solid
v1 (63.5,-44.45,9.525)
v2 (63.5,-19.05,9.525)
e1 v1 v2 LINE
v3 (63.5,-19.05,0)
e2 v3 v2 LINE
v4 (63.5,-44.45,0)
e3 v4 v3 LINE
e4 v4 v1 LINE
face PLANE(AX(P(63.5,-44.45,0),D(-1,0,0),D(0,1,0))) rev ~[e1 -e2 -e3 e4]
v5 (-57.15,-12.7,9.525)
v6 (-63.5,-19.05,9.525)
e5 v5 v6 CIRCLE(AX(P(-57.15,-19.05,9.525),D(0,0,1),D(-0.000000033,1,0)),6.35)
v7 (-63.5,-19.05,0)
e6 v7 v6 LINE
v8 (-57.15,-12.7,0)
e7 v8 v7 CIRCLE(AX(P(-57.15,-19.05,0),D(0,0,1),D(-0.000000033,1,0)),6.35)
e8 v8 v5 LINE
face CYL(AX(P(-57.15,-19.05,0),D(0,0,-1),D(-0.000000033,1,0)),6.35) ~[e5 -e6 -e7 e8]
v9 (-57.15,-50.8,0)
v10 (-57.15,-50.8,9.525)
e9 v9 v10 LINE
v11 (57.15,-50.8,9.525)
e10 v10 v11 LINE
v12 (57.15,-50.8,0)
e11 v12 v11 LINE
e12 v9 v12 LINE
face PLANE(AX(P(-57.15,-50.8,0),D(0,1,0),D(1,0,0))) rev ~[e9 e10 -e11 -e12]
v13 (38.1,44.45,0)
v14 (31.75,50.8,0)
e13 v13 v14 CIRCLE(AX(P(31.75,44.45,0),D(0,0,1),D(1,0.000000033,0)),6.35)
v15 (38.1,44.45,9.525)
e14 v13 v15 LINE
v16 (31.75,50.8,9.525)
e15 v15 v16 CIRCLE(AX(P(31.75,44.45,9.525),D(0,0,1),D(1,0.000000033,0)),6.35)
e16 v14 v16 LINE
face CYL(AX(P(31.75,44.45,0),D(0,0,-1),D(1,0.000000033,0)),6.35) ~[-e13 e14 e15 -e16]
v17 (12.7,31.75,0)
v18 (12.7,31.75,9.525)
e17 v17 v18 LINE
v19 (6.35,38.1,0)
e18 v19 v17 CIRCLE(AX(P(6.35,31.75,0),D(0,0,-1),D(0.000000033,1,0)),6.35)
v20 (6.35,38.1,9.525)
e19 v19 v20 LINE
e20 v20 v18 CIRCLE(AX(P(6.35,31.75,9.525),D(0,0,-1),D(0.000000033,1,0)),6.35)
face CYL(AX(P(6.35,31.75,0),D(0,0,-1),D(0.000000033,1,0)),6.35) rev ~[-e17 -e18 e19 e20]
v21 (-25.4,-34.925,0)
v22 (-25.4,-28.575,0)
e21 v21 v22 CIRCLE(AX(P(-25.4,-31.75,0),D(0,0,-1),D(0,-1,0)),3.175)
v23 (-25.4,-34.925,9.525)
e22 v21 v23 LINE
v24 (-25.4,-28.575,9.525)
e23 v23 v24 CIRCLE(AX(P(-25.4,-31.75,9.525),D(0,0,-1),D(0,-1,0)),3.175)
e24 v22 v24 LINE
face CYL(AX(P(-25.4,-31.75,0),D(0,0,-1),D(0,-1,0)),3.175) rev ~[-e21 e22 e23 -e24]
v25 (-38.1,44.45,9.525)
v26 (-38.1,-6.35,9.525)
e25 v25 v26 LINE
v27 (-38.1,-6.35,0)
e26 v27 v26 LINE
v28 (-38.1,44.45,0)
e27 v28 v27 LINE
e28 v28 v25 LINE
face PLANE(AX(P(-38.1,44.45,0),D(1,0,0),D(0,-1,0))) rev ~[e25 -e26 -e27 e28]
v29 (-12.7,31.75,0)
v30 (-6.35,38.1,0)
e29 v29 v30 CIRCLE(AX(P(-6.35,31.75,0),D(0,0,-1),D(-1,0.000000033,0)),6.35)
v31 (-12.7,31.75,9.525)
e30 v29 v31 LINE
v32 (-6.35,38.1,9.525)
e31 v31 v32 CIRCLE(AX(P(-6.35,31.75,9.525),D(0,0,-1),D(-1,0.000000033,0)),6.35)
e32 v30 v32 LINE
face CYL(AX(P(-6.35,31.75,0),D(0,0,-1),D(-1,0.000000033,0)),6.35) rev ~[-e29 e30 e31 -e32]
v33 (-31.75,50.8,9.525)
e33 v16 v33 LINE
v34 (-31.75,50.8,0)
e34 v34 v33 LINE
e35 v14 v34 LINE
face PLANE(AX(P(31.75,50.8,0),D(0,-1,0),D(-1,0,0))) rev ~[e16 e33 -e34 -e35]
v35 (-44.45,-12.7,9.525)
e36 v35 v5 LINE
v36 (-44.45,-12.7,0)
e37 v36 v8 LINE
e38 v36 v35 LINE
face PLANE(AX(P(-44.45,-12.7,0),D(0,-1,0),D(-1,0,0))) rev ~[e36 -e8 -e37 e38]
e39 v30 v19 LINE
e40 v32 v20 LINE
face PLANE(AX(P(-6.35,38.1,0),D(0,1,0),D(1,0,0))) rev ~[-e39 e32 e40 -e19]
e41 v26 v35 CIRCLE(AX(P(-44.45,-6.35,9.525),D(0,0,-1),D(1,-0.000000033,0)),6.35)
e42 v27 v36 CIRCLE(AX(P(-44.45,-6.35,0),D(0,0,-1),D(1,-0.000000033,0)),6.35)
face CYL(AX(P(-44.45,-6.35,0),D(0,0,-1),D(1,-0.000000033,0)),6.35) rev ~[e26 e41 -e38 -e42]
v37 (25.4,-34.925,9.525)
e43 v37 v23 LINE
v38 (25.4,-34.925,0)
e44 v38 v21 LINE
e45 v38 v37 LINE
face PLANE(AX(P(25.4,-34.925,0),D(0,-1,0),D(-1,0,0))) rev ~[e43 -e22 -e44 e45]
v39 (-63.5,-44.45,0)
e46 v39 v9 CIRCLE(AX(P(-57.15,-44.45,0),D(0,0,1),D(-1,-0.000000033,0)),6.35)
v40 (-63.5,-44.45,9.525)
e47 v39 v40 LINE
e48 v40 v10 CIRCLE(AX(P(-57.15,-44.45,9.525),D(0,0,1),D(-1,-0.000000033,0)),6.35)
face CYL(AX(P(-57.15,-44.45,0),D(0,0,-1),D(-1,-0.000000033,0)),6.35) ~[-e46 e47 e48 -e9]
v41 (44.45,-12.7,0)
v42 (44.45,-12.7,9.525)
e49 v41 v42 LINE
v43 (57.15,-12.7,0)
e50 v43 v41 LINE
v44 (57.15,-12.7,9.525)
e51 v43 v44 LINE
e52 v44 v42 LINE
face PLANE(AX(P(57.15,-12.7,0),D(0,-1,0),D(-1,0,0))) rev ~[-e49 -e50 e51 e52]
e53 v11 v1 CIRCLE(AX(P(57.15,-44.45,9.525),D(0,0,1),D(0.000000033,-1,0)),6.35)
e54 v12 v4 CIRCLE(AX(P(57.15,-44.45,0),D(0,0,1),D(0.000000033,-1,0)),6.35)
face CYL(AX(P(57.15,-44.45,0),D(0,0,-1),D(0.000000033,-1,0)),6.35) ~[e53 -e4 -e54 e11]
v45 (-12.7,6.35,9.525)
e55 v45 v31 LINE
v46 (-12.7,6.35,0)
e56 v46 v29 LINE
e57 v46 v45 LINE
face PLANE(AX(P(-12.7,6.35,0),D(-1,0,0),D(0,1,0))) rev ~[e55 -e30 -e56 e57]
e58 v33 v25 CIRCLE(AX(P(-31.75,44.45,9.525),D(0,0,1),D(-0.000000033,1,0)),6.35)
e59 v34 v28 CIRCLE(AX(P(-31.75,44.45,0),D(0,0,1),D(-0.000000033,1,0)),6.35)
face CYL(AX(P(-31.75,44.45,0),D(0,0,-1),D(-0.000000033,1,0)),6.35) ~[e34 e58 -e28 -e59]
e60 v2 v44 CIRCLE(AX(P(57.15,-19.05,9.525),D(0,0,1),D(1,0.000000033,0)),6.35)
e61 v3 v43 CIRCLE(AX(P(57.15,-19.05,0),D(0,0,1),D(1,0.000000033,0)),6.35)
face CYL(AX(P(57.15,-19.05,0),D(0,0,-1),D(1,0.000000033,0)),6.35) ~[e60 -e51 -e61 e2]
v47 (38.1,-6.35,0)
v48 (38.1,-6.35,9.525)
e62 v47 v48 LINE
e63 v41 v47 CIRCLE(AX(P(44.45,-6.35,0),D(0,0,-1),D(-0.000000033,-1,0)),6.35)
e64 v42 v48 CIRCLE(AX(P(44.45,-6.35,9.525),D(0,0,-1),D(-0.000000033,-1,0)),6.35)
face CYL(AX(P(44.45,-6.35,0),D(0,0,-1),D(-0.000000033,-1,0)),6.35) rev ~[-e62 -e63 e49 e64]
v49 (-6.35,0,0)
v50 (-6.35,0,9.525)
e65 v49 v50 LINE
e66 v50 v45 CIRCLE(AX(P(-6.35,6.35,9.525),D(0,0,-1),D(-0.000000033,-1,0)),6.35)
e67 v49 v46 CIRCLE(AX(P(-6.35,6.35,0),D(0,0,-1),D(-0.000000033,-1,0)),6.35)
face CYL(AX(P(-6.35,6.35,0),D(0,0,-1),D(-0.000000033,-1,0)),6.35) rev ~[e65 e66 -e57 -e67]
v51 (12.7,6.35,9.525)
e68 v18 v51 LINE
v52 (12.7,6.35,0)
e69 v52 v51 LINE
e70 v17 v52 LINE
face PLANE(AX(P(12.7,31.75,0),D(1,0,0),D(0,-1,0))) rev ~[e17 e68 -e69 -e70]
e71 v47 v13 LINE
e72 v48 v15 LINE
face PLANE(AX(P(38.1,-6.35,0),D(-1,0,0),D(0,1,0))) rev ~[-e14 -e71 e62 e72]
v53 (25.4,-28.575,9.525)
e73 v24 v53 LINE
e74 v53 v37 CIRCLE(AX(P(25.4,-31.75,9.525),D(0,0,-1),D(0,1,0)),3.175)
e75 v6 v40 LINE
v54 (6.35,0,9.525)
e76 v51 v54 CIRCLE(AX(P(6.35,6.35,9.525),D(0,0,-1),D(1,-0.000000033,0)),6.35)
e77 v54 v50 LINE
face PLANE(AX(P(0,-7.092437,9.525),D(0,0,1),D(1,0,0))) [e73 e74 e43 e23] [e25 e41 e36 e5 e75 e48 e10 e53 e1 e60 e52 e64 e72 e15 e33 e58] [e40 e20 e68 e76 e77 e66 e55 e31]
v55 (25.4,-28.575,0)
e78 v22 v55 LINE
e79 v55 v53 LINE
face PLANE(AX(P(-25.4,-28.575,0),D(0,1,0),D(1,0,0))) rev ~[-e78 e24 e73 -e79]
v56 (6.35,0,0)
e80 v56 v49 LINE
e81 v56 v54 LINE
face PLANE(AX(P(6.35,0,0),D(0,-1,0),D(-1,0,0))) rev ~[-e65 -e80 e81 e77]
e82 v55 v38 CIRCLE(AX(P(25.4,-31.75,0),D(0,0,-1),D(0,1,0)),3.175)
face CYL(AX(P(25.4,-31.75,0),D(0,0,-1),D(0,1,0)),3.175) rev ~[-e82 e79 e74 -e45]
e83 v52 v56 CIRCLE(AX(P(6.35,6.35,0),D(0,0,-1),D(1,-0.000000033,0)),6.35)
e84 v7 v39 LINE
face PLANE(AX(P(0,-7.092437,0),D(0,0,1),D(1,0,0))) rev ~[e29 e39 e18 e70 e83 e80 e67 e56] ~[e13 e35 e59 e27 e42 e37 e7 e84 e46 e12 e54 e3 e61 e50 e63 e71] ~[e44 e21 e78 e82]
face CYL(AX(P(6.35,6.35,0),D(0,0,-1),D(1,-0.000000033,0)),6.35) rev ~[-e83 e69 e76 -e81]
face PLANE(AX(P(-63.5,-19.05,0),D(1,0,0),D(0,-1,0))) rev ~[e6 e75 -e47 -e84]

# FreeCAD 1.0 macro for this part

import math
import FreeCAD as App
import Part
import Sketcher

V = App.Vector
Q = App.Units.Quantity

doc = App.newDocument("Part")
body = doc.addObject("PartDesign::Body", "Body")

sketch1 = body.newObject("Sketcher::SketchObject", "Sketch")
sketch1.AttachmentSupport = (doc.getObject("XY_Plane"), [""])
sketch1.MapMode = "FlatFace"
sketch1.addGeometry([
    Part.LineSegment(V(-57.15, -50.8, 0), V(57.15, -50.8, 0)),
    Part.ArcOfCircle(Part.Circle(V(57.15, -44.45, 0), V(0, 0, 1), 6.35), math.radians(-89.999998), math.radians(-0.000002)),
    Part.LineSegment(V(63.5, -44.45, 0), V(63.5, -19.05, 0)),
    Part.ArcOfCircle(Part.Circle(V(57.15, -19.05, 0), V(0, 0, 1), 6.35), math.radians(0.000002), math.radians(89.999998)),
    Part.LineSegment(V(57.15, -12.7, 0), V(44.45, -12.7, 0)),
    Part.ArcOfCircle(Part.Circle(V(44.45, -6.35, 0), V(0, 0, 1), 6.35), math.radians(-179.999998), math.radians(-90.000002)),
    Part.LineSegment(V(38.1, -6.35, 0), V(38.1, 44.45, 0)),
    Part.ArcOfCircle(Part.Circle(V(31.75, 44.45, 0), V(0, 0, 1), 6.35), math.radians(0.000002), math.radians(89.999998)),
    Part.LineSegment(V(31.75, 50.8, 0), V(-31.75, 50.8, 0)),
    Part.ArcOfCircle(Part.Circle(V(-31.75, 44.45, 0), V(0, 0, 1), 6.35), math.radians(90.000002), math.radians(179.999998)),
    Part.LineSegment(V(-38.1, 44.45, 0), V(-38.1, -6.35, 0)),
    Part.ArcOfCircle(Part.Circle(V(-44.45, -6.35, 0), V(0, 0, 1), 6.35), math.radians(-89.999998), math.radians(-0.000002)),
    Part.LineSegment(V(-44.45, -12.7, 0), V(-57.15, -12.7, 0)),
    Part.ArcOfCircle(Part.Circle(V(-57.15, -19.05, 0), V(0, 0, 1), 6.35), math.radians(90.000002), math.radians(179.999998)),
    Part.LineSegment(V(-63.5, -19.05, 0), V(-63.5, -44.45, 0)),
    Part.ArcOfCircle(Part.Circle(V(-57.15, -44.45, 0), V(0, 0, 1), 6.35), math.radians(-179.999998), math.radians(-90.000002)),
    Part.LineSegment(V(-25.4, -28.575, 0), V(25.4, -28.575, 0)),
    Part.ArcOfCircle(Part.Circle(V(25.4, -31.75, 0), V(0, 0, 1), 3.175), math.radians(-90), math.radians(90)),
    Part.LineSegment(V(25.4, -34.925, 0), V(-25.4, -34.925, 0)),
    Part.ArcOfCircle(Part.Circle(V(-25.4, -31.75, 0), V(0, 0, 1), 3.175), math.radians(90), math.radians(270)),
    Part.LineSegment(V(12.7, 31.75, 0), V(12.7, 6.35, 0)),
    Part.ArcOfCircle(Part.Circle(V(6.35, 6.35, 0), V(0, 0, 1), 6.35), math.radians(-89.999998), math.radians(-0.000002)),
    Part.LineSegment(V(6.35, 0, 0), V(-6.35, 0, 0)),
    Part.ArcOfCircle(Part.Circle(V(-6.35, 6.35, 0), V(0, 0, 1), 6.35), math.radians(-179.999998), math.radians(-90.000002)),
    Part.LineSegment(V(-12.7, 6.35, 0), V(-12.7, 31.75, 0)),
    Part.ArcOfCircle(Part.Circle(V(-6.35, 31.75, 0), V(0, 0, 1), 6.35), math.radians(90.000002), math.radians(179.999998)),
    Part.LineSegment(V(-6.35, 38.1, 0), V(6.35, 38.1, 0)),
    Part.ArcOfCircle(Part.Circle(V(6.35, 31.75, 0), V(0, 0, 1), 6.35), math.radians(0.000002), math.radians(89.999998)),
], False)
sketch1.addConstraint([
    Sketcher.Constraint("Tangent", 0, 2, 1, 1),
    Sketcher.Constraint("Tangent", 1, 2, 2, 1),
    Sketcher.Constraint("Tangent", 2, 2, 3, 1),
    Sketcher.Constraint("Tangent", 3, 2, 4, 1),
    Sketcher.Constraint("Tangent", 4, 2, 5, 2),
    Sketcher.Constraint("Tangent", 5, 1, 6, 1),
    Sketcher.Constraint("Tangent", 6, 2, 7, 1),
    Sketcher.Constraint("Tangent", 7, 2, 8, 1),
    Sketcher.Constraint("Tangent", 8, 2, 9, 1),
    Sketcher.Constraint("Tangent", 9, 2, 10, 1),
    Sketcher.Constraint("Tangent", 10, 2, 11, 2),
    Sketcher.Constraint("Tangent", 11, 1, 12, 1),
    Sketcher.Constraint("Tangent", 12, 2, 13, 1),
    Sketcher.Constraint("Tangent", 13, 2, 14, 1),
    Sketcher.Constraint("Tangent", 14, 2, 15, 1),
    Sketcher.Constraint("Tangent", 15, 2, 0, 1),
    Sketcher.Constraint("Tangent", 16, 2, 17, 2),
    Sketcher.Constraint("Tangent", 17, 1, 18, 1),
    Sketcher.Constraint("Tangent", 18, 2, 19, 2),
    Sketcher.Constraint("Tangent", 19, 1, 16, 1),
    Sketcher.Constraint("Tangent", 20, 2, 21, 2),
    Sketcher.Constraint("Tangent", 21, 1, 22, 1),
    Sketcher.Constraint("Tangent", 22, 2, 23, 2),
    Sketcher.Constraint("Tangent", 23, 1, 24, 1),
    Sketcher.Constraint("Tangent", 24, 2, 25, 2),
    Sketcher.Constraint("Tangent", 25, 1, 26, 1),
    Sketcher.Constraint("Tangent", 26, 2, 27, 2),
    Sketcher.Constraint("Tangent", 27, 1, 20, 1),
    Sketcher.Constraint("Horizontal", 0),
    Sketcher.Constraint("Vertical", 2),
    Sketcher.Constraint("Horizontal", 4),
    Sketcher.Constraint("Vertical", 6),
    Sketcher.Constraint("Horizontal", 8),
    Sketcher.Constraint("Vertical", 10),
    Sketcher.Constraint("Horizontal", 12),
    Sketcher.Constraint("Vertical", 14),
    Sketcher.Constraint("Horizontal", 16),
    Sketcher.Constraint("Horizontal", 18),
    Sketcher.Constraint("Vertical", 20),
    Sketcher.Constraint("Horizontal", 22),
    Sketcher.Constraint("Vertical", 24),
    Sketcher.Constraint("Horizontal", 26),
    Sketcher.Constraint("Equal", 1, 3),
    Sketcher.Constraint("Equal", 3, 5),
    Sketcher.Constraint("Equal", 5, 7),
    Sketcher.Constraint("Equal", 7, 9),
    Sketcher.Constraint("Equal", 9, 11),
    Sketcher.Constraint("Equal", 11, 13),
    Sketcher.Constraint("Equal", 13, 15),
    Sketcher.Constraint("Equal", 15, 21),
    Sketcher.Constraint("Equal", 21, 23),
    Sketcher.Constraint("Equal", 23, 25),
    Sketcher.Constraint("Equal", 25, 27),
    Sketcher.Constraint("Symmetric", 21, 1, 22, 2, -1, 1),
    Sketcher.Constraint("Symmetric", 5, 3, 11, 3, -2),
    Sketcher.Constraint("Equal", 4, 12),
    Sketcher.Constraint("Equal", 12, 22),
    Sketcher.Constraint("Equal", 18, 6),
    Sketcher.Constraint("Equal", 14, 20),
    Sketcher.Constraint("DistanceX", 16, 1, 16, 2, Q("2 in")),
    Sketcher.Constraint("DistanceY", 2, 1, 2, 2, Q("1 in")),
    Sketcher.Constraint("Radius", 1, Q("0.25 in")),
    Sketcher.Constraint("DistanceX", 0, 1, 0, 2, Q("4.5 in")),
    Sketcher.Constraint("DistanceX", 4, 2, 4, 1, Q("0.5 in")),
    Sketcher.Constraint("DistanceX", -1, 1, 17, 3, Q("1 in")),
    Sketcher.Constraint("DistanceY", 0, 2, -1, 1, Q("2 in")),
    Sketcher.Constraint("Radius", 17, Q("0.125 in")),
    Sketcher.Constraint("DistanceY", 17, 3, 5, 3, Q("1 in")),
])
pad1 = body.newObject("PartDesign::Pad", "Pad")
pad1.Profile = sketch1
pad1.Length = Q("0.375 in")

doc.recompute()
